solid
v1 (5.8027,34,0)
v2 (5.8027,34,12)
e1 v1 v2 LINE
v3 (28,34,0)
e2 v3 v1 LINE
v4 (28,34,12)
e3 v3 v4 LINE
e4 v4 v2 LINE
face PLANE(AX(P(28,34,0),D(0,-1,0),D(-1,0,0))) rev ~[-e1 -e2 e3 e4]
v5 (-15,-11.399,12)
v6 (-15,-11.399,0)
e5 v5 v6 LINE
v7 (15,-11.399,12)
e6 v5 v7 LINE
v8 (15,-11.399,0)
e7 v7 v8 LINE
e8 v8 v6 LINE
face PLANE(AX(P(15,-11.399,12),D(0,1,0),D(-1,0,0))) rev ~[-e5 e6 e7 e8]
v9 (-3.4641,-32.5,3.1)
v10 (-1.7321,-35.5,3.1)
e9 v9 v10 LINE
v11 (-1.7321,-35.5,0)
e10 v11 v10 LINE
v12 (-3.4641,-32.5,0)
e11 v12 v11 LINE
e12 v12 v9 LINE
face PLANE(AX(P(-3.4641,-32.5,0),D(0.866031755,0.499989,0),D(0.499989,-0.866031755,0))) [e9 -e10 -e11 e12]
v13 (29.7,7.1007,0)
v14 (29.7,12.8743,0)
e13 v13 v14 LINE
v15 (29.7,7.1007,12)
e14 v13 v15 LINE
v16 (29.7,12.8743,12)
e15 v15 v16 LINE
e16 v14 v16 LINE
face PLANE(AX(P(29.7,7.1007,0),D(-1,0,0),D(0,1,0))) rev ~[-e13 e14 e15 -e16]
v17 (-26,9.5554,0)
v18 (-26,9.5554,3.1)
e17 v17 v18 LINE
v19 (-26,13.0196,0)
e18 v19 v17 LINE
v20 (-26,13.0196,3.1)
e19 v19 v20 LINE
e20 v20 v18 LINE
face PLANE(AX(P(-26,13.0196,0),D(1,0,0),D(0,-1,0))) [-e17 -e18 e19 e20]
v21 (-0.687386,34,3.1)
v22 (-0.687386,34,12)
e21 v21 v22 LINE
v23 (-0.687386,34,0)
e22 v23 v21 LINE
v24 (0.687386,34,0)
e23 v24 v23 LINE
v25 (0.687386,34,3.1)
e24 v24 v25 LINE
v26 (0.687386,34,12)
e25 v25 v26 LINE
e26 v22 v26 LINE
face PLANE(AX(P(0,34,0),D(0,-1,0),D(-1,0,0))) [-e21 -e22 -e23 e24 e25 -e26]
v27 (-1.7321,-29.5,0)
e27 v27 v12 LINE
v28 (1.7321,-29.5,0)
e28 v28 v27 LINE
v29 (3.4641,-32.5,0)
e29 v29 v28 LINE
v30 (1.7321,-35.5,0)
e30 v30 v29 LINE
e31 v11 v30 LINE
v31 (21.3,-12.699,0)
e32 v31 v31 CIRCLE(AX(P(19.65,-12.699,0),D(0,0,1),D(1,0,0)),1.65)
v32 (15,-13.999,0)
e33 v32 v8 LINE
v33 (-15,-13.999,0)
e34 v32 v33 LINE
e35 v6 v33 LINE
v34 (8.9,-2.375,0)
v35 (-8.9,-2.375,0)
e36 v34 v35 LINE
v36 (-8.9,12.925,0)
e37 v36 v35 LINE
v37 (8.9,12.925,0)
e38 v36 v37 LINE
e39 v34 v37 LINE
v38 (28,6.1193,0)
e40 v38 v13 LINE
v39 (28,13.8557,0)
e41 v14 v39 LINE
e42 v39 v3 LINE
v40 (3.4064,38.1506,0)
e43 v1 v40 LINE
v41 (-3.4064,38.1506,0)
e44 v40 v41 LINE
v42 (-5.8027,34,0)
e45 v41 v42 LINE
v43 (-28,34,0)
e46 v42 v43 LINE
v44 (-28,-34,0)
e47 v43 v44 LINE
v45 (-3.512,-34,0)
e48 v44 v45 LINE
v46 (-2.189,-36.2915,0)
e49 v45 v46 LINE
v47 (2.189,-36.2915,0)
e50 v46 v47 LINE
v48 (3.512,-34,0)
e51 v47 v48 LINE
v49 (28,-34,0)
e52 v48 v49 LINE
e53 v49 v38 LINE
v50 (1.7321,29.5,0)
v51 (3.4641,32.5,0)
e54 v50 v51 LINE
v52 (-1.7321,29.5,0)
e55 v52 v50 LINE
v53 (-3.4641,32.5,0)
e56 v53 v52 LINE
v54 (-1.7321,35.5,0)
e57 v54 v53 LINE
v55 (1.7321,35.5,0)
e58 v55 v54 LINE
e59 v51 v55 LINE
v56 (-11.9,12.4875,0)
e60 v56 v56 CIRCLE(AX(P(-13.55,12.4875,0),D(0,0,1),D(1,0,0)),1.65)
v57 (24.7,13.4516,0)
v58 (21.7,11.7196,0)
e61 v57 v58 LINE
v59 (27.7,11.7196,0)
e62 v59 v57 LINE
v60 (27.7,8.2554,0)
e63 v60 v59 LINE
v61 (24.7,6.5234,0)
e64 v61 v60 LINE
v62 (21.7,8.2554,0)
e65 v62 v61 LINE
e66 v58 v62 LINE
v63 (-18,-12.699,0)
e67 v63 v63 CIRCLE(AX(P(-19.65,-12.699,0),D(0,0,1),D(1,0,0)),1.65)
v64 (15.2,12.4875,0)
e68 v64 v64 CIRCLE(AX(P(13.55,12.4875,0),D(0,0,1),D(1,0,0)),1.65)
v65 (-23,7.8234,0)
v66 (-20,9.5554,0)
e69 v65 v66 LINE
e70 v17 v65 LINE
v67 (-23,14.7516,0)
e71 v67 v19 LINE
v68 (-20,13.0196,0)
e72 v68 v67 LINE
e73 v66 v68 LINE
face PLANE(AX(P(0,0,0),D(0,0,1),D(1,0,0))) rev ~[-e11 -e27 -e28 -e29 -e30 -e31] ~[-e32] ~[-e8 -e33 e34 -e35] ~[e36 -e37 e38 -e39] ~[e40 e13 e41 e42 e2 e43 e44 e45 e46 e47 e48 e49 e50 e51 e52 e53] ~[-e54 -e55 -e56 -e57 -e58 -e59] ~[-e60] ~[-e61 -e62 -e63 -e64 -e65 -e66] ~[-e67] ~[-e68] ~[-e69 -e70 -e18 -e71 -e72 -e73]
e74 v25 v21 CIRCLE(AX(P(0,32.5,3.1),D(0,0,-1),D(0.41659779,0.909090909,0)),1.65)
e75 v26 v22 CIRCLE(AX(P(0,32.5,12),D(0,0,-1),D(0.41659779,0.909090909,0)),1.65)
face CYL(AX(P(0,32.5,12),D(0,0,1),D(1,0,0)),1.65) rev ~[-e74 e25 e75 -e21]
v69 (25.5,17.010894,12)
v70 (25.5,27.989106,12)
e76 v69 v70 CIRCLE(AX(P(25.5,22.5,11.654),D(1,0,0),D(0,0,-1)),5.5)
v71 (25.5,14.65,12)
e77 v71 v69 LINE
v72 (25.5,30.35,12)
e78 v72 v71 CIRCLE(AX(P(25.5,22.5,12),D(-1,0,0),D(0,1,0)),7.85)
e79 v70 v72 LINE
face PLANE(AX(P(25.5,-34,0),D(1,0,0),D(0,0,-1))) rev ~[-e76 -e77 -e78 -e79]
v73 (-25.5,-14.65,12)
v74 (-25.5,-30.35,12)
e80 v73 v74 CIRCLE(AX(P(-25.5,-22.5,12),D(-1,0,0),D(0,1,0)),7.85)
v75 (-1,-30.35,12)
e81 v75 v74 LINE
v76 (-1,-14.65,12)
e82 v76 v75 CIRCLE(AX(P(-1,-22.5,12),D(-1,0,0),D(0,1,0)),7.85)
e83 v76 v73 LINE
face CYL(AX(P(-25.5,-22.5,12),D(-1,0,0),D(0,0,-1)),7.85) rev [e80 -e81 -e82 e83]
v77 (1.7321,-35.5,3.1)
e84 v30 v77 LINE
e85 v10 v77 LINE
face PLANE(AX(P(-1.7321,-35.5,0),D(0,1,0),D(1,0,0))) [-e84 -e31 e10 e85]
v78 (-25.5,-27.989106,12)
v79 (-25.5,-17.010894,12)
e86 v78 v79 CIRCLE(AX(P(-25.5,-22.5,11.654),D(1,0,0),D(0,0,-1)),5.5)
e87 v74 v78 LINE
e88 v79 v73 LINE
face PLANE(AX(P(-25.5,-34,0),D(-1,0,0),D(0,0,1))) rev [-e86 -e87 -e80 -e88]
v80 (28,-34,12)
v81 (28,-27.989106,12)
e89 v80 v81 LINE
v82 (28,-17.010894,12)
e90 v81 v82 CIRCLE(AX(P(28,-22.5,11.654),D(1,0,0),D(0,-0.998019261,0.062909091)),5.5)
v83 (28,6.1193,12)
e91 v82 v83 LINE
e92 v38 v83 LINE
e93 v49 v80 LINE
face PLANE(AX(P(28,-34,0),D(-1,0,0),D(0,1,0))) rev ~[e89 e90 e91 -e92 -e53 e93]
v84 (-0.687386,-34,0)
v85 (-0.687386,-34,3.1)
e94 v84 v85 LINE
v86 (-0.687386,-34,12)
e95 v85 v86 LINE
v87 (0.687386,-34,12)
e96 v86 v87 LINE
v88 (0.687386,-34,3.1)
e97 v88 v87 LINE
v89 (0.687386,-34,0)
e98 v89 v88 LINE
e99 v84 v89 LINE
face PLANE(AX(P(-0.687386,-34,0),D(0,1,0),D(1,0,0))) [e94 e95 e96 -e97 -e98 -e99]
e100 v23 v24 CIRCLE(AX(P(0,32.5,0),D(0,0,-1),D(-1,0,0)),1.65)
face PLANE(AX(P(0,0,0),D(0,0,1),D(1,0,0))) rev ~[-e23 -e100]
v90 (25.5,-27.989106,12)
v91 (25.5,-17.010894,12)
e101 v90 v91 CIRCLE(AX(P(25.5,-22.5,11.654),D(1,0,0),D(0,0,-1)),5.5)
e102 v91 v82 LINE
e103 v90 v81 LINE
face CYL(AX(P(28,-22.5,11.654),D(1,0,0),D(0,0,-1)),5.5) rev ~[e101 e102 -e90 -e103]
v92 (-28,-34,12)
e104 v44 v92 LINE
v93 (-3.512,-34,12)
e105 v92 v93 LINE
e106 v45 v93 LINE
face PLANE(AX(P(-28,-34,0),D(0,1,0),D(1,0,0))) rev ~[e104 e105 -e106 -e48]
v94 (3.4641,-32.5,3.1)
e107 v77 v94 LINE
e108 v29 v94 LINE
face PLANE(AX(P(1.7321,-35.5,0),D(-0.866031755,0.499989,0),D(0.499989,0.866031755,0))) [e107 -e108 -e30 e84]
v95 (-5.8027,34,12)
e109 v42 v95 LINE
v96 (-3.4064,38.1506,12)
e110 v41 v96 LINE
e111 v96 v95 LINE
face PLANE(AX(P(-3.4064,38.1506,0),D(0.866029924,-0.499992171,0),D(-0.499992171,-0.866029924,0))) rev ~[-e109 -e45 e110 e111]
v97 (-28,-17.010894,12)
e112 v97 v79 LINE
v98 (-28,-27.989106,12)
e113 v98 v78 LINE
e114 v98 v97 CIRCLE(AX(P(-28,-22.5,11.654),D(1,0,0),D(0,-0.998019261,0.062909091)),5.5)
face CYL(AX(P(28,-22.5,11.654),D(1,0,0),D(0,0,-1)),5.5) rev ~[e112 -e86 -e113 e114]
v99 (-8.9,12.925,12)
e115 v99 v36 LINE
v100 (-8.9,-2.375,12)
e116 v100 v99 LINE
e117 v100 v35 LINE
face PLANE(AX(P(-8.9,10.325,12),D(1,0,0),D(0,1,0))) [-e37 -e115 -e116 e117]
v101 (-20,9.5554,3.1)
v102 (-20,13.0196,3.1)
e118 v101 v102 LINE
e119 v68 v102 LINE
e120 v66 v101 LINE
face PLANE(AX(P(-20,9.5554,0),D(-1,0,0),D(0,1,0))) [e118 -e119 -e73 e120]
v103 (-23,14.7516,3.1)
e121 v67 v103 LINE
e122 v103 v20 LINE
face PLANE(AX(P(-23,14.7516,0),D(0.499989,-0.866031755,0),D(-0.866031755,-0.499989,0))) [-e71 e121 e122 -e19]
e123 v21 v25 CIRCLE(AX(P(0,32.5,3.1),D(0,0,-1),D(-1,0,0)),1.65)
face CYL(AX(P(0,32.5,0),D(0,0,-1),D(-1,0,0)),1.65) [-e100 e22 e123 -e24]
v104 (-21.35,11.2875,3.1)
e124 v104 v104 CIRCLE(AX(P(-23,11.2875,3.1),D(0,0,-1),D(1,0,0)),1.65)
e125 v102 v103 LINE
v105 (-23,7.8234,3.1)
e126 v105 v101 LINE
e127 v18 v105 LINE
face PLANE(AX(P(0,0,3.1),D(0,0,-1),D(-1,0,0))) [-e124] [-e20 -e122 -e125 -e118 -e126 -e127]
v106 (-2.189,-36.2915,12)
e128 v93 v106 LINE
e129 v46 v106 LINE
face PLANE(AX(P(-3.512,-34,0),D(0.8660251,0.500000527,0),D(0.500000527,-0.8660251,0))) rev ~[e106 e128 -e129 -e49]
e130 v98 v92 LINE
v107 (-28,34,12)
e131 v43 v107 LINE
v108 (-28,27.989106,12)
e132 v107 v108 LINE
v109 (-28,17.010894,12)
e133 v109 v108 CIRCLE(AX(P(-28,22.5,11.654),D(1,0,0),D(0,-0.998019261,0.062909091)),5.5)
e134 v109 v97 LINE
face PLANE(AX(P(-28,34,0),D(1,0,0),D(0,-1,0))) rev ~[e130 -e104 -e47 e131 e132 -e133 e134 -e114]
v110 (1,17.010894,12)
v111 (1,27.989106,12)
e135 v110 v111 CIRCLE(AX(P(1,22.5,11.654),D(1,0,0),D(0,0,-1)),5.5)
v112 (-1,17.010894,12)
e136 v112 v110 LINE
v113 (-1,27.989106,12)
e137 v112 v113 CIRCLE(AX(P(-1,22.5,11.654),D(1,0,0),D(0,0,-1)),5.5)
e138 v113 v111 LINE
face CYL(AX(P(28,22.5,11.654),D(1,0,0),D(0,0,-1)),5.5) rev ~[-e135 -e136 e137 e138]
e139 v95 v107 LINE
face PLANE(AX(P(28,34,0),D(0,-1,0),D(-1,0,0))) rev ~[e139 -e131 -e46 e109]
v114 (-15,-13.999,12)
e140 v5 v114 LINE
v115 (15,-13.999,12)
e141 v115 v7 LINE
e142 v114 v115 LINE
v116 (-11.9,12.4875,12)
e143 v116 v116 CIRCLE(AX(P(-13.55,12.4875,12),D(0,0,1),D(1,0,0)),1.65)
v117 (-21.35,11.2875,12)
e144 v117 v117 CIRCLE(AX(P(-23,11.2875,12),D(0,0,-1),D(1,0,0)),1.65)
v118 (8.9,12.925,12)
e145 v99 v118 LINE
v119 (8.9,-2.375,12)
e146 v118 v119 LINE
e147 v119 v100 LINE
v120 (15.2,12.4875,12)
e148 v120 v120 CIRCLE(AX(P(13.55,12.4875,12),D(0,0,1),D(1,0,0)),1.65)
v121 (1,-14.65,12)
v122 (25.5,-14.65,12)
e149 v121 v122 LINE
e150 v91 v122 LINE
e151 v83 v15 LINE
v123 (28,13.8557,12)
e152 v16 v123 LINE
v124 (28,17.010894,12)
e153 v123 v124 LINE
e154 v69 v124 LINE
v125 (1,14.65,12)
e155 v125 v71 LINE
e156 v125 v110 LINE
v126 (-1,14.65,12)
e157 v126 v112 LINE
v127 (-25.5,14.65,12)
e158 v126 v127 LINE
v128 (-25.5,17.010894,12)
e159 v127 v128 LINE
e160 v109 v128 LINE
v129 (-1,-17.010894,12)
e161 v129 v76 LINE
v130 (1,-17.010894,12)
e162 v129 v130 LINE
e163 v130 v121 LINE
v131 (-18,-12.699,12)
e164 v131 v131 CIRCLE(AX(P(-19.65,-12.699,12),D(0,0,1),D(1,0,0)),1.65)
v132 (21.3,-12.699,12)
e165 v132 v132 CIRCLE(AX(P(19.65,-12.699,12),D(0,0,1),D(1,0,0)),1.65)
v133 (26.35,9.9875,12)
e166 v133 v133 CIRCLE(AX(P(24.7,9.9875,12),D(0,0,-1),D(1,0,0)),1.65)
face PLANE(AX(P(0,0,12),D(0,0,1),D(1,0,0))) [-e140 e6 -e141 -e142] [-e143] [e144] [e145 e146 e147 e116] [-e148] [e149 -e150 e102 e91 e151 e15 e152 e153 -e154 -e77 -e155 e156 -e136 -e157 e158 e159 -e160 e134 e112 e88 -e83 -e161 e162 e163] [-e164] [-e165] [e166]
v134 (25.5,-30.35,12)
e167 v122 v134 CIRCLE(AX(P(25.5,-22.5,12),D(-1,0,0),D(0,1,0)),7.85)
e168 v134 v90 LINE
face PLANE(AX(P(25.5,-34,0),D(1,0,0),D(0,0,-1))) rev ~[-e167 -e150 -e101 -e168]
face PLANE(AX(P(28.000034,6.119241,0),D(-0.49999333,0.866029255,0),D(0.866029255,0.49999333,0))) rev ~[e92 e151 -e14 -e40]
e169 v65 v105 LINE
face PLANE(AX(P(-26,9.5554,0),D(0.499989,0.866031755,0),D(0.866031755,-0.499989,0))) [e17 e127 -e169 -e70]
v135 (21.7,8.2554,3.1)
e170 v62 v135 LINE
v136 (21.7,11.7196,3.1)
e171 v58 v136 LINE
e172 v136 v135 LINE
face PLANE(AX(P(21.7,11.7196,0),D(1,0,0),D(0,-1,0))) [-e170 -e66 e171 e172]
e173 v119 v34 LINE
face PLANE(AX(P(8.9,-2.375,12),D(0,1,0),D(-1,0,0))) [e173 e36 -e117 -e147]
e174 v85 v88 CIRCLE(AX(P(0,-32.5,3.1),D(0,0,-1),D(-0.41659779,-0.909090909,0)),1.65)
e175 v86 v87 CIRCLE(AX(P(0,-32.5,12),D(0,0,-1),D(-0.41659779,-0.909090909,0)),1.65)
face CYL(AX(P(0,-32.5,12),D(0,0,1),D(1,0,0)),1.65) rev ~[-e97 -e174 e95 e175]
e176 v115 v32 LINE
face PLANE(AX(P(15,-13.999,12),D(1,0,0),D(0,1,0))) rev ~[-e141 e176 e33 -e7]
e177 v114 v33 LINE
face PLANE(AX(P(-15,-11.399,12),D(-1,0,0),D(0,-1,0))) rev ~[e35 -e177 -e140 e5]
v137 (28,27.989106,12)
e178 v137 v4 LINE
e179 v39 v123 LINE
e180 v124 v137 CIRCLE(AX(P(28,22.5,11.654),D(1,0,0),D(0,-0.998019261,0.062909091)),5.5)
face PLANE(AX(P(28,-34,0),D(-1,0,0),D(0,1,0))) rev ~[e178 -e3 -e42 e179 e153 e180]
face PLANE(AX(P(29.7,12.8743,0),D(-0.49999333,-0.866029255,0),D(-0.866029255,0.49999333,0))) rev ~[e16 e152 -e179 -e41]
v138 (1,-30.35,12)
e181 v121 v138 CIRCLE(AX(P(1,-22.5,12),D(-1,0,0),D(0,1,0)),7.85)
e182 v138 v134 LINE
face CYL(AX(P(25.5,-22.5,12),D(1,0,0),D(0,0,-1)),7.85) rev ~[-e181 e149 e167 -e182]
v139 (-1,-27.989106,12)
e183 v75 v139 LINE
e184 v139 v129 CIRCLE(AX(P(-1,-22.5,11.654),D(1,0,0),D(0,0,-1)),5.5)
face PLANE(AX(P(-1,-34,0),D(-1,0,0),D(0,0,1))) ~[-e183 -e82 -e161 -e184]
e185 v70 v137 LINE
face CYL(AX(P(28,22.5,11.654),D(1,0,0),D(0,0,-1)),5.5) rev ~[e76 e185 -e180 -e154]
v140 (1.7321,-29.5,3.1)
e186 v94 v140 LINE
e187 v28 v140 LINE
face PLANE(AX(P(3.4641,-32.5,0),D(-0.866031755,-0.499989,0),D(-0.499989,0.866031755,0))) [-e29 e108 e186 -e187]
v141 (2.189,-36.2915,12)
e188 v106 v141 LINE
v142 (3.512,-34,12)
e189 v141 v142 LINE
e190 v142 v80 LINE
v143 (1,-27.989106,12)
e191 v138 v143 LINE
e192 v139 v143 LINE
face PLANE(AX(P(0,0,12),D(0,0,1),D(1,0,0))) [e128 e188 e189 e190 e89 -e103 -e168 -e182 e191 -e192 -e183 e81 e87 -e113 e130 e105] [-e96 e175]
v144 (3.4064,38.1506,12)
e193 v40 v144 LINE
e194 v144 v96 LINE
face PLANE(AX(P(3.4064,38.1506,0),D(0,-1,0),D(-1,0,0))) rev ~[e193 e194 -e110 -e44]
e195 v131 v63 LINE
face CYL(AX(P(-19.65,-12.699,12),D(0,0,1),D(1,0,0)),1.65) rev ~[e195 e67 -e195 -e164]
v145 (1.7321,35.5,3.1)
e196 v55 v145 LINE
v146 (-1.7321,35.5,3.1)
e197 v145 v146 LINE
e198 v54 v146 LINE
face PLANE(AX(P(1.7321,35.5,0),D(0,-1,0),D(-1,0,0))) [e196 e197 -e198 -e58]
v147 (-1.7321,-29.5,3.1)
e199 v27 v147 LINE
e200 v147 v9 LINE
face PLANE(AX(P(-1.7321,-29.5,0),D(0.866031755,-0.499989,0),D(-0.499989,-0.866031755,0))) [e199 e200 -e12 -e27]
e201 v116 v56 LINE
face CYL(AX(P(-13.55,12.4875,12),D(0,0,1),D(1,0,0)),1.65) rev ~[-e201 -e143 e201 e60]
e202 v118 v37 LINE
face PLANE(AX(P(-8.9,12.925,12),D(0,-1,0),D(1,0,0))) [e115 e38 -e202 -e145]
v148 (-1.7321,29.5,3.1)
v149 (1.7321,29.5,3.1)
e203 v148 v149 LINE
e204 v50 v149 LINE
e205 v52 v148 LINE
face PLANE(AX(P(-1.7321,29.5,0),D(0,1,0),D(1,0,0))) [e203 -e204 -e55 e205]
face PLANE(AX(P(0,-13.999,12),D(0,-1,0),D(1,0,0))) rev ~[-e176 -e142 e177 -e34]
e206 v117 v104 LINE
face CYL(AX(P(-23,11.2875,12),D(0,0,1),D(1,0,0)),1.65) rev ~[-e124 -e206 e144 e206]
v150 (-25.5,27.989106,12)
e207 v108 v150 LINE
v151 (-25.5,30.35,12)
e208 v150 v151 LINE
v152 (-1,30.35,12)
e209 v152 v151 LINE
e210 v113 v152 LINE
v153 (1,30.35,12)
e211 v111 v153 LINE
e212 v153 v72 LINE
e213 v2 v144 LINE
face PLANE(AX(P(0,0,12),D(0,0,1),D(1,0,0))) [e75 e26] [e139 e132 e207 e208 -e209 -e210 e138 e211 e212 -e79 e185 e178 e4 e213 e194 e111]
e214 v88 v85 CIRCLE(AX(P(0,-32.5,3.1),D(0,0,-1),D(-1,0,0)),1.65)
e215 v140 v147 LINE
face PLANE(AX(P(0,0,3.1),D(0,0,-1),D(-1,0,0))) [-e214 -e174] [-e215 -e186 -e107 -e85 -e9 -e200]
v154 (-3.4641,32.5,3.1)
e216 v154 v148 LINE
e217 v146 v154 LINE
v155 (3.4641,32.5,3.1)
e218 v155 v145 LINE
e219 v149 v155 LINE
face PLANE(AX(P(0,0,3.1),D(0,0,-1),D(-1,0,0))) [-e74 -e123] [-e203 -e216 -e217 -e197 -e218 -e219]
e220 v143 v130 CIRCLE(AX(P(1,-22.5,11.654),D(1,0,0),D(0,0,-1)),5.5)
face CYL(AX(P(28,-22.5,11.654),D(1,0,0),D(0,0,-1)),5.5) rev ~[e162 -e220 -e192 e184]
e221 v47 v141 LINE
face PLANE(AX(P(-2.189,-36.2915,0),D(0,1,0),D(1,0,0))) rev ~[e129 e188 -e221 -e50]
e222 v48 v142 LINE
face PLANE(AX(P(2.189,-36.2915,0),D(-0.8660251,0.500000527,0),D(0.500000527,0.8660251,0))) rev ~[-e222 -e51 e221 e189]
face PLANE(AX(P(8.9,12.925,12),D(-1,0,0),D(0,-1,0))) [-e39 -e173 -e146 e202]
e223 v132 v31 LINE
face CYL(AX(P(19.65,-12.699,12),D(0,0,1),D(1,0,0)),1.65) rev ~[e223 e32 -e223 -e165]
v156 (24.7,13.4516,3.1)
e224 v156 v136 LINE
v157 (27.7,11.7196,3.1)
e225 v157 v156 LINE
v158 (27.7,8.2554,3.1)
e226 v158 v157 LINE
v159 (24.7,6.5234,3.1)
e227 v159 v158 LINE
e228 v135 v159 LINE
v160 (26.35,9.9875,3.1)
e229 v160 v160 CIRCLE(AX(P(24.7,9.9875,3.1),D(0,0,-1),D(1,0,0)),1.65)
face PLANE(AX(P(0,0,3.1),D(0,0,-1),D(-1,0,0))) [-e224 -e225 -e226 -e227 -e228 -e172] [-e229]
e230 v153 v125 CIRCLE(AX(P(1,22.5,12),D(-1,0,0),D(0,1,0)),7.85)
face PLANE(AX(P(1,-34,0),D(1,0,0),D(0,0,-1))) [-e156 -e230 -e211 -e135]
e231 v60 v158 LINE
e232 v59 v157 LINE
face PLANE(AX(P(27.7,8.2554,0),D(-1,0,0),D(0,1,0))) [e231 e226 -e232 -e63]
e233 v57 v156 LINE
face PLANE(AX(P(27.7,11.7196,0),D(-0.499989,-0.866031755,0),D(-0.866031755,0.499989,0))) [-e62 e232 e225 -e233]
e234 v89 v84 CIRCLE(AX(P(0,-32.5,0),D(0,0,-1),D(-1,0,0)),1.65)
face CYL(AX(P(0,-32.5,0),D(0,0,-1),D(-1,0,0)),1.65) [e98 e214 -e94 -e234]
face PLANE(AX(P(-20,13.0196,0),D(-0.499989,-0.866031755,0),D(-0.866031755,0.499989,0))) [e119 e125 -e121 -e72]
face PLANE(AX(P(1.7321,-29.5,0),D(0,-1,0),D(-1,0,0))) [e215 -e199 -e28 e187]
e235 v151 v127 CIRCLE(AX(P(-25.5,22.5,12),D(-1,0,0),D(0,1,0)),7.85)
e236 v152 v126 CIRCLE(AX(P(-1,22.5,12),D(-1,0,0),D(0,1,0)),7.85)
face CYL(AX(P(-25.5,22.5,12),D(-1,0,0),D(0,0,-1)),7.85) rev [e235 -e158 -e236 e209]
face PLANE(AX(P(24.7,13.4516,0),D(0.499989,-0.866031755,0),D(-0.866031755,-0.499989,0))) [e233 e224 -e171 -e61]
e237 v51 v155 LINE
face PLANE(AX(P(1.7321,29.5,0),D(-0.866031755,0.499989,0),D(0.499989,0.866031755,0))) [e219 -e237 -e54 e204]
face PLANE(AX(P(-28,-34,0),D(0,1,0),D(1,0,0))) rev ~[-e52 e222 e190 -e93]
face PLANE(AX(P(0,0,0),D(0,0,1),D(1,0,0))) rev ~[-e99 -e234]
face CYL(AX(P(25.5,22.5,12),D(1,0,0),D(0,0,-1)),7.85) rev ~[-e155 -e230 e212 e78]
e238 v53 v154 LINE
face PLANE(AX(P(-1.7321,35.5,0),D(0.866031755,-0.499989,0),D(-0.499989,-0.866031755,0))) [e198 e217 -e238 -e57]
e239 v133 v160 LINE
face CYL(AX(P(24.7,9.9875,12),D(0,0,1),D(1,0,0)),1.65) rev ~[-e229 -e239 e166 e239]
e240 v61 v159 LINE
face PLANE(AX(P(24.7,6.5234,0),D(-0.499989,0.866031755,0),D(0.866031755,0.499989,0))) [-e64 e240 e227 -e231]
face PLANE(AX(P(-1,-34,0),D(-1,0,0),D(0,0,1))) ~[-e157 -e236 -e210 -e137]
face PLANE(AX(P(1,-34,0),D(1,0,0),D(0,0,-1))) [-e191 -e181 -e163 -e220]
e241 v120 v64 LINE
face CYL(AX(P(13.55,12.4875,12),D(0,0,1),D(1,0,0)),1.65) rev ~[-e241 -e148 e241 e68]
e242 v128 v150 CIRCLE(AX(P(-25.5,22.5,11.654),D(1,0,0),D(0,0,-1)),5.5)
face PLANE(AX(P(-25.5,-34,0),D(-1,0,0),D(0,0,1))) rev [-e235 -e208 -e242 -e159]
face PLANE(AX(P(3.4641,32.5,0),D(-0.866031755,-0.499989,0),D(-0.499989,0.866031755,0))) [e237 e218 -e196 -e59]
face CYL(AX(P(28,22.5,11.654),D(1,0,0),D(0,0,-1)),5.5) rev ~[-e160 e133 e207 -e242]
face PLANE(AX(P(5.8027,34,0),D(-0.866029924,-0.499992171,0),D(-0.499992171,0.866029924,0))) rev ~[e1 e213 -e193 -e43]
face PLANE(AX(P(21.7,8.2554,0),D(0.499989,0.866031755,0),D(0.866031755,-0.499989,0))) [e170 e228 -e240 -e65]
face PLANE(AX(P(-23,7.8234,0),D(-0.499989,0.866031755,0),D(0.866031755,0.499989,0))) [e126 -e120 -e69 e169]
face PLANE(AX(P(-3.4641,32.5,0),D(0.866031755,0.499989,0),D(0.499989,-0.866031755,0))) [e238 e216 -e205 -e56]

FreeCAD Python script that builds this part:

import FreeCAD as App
import Part
import Sketcher

V = App.Vector
Q = App.Units.Quantity

doc = App.newDocument("Part")
params = doc.addObject("Spreadsheet::Sheet", "Params")
for row, (alias, value) in enumerate([
    ("sketch1_width", "56 mm"),
    ("sketch1_height", "68 mm"),
    ("pad1_length", "12 mm"),
    ("sketch2_diameter", "11 mm"),
    ("pocket1_length", "56 mm"),
    ("sketch3_diameter", "15.7 mm"),
    ("pocket2_length", "24.5 mm"),
    ("sketch4_width", "30 mm"),
    ("sketch4_height", "2.6 mm"),
    ("sketch4_height2", "15.3 mm"),
    ("sketch4_width2", "17.8 mm"),
    ("pocket3_length", "12 mm"),
    ("sketch5_diameter", "3.3 mm"),
    ("pocket4_length", "12 mm"),
    ("pad2_length", "12 mm"),
    ("sketch7_diameter", "3.3 mm"),
    ("pocket5_length", "3.1 mm"),
], start=1):
    params.set(f"A{row}", alias)
    params.set(f"B{row}", "=" + value)
    params.setAlias(f"B{row}", alias)

body = doc.addObject("PartDesign::Body", "Body")

sketch1 = doc.addObject("Sketcher::SketchObject", "Sketch")
body.addObject(sketch1)
sketch1.AttachmentSupport = (doc.XY_Plane, [""])
sketch1.MapMode = "FlatFace"
sketch1.addGeometry(Part.LineSegment(V(-28, 34, 0), V(-28, -34, 0)), False)
sketch1.addGeometry(Part.LineSegment(V(-28, -34, 0), V(28, -34, 0)), False)
sketch1.addGeometry(Part.LineSegment(V(28, -34, 0), V(28, 34, 0)), False)
sketch1.addGeometry(Part.LineSegment(V(28, 34, 0), V(-28, 34, 0)), False)
sketch1.addConstraint(Sketcher.Constraint("Coincident", 0, 2, 1, 1))
sketch1.addConstraint(Sketcher.Constraint("Coincident", 1, 2, 2, 1))
sketch1.addConstraint(Sketcher.Constraint("Coincident", 2, 2, 3, 1))
sketch1.addConstraint(Sketcher.Constraint("Coincident", 3, 2, 0, 1))
sketch1.addConstraint(Sketcher.Constraint("Vertical", 0))
sketch1.addConstraint(Sketcher.Constraint("Horizontal", 1))
sketch1.addConstraint(Sketcher.Constraint("Vertical", 2))
sketch1.addConstraint(Sketcher.Constraint("Horizontal", 3))
sketch1.addConstraint(Sketcher.Constraint("Symmetric", 0, 2, 2, 2, -1, 1))
sketch1.addConstraint(Sketcher.Constraint("DistanceX", 1, 1, 1, 2, Q("56 mm")))
sketch1.addConstraint(Sketcher.Constraint("DistanceY", 0, 2, 0, 1, Q("68 mm")))
sketch1.setExpression("Constraints[9]", "Params.sketch1_width")
sketch1.setExpression("Constraints[10]", "Params.sketch1_height")
pad1 = doc.addObject("PartDesign::Pad", "Pad")
body.addObject(pad1)
pad1.Profile = sketch1
pad1.setExpression("Length", "Params.pad1_length")

sketch2 = doc.addObject("Sketcher::SketchObject", "Sketch001")
body.addObject(sketch2)
sketch2.AttachmentSupport = (doc.YZ_Plane, [""])
sketch2.MapMode = "FlatFace"
sketch2.AttachmentOffset = App.Placement(V(0, 0, 28), App.Rotation())
sketch2.addGeometry(Part.Circle(V(-22.5, 11.654, 0), V(0, 0, 1), 5.5), False)
sketch2.addGeometry(Part.Circle(V(22.5, 11.654, 0), V(0, 0, 1), 5.5), False)
sketch2.addConstraint(Sketcher.Constraint("Equal", 0, 1))
sketch2.addConstraint(Sketcher.Constraint("Symmetric", 0, 3, 1, 3, -2))
sketch2.addConstraint(Sketcher.Constraint("Diameter", 0, Q("11 mm")))
sketch2.addConstraint(Sketcher.Constraint("DistanceX", 0, 3, -1, 1, Q("22.5 mm")))
sketch2.addConstraint(Sketcher.Constraint("DistanceY", -1, 1, 0, 3, Q("11.654 mm")))
sketch2.setExpression("Constraints[2]", "Params.sketch2_diameter")
pocket1 = doc.addObject("PartDesign::Pocket", "Pocket")
body.addObject(pocket1)
pocket1.Profile = sketch2
pocket1.setExpression("Length", "Params.pocket1_length")

sketch3 = doc.addObject("Sketcher::SketchObject", "Sketch002")
body.addObject(sketch3)
sketch3.AttachmentSupport = (doc.YZ_Plane, [""])
sketch3.MapMode = "FlatFace"
sketch3.AttachmentOffset = App.Placement(V(0, 0, 25.5), App.Rotation())
sketch3.addGeometry(Part.Circle(V(22.5, 12, 0), V(0, 0, 1), 7.85), False)
sketch3.addGeometry(Part.Circle(V(-22.5, 12, 0), V(0, 0, 1), 7.85), False)
sketch3.addConstraint(Sketcher.Constraint("Equal", 0, 1))
sketch3.addConstraint(Sketcher.Constraint("Symmetric", 0, 3, 1, 3, -2))
sketch3.addConstraint(Sketcher.Constraint("Diameter", 0, Q("15.7 mm")))
sketch3.addConstraint(Sketcher.Constraint("DistanceY", -1, 1, 0, 3, Q("12 mm")))
sketch3.addConstraint(Sketcher.Constraint("DistanceX", 1, 3, 0, 3, Q("45 mm")))
sketch3.setExpression("Constraints[2]", "Params.sketch3_diameter")
pocket2 = doc.addObject("PartDesign::Pocket", "Pocket001")
body.addObject(pocket2)
pocket2.Profile = sketch3
pocket2.setExpression("Length", "Params.pocket2_length")
doc.recompute()

mirrored = doc.addObject("PartDesign::Mirrored", "Mirrored")
body.addObject(mirrored)
mirrored.Originals = [pocket2]
mirrored.MirrorPlane = (doc.YZ_Plane, [""])
body.Tip = mirrored

sketch4 = doc.addObject("Sketcher::SketchObject", "Sketch003")
body.addObject(sketch4)
sketch4.AttachmentSupport = (doc.XY_Plane, [""])
sketch4.MapMode = "FlatFace"
sketch4.AttachmentOffset = App.Placement(V(0, 0, 12), App.Rotation())
sketch4.addGeometry(Part.LineSegment(V(15, -11.399, 0), V(-15, -11.399, 0)), False)
sketch4.addGeometry(Part.LineSegment(V(-15, -11.399, 0), V(-15, -13.999, 0)), False)
sketch4.addGeometry(Part.LineSegment(V(-15, -13.999, 0), V(15, -13.999, 0)), False)
sketch4.addGeometry(Part.LineSegment(V(15, -13.999, 0), V(15, -11.399, 0)), False)
sketch4.addGeometry(Part.LineSegment(V(8.9, 12.925, 0), V(-8.9, 12.925, 0)), False)
sketch4.addGeometry(Part.LineSegment(V(-8.9, 12.925, 0), V(-8.9, -2.375, 0)), False)
sketch4.addGeometry(Part.LineSegment(V(-8.9, -2.375, 0), V(8.9, -2.375, 0)), False)
sketch4.addGeometry(Part.LineSegment(V(8.9, -2.375, 0), V(8.9, 12.925, 0)), False)
sketch4.addConstraint(Sketcher.Constraint("Coincident", 0, 2, 1, 1))
sketch4.addConstraint(Sketcher.Constraint("Coincident", 1, 2, 2, 1))
sketch4.addConstraint(Sketcher.Constraint("Coincident", 2, 2, 3, 1))
sketch4.addConstraint(Sketcher.Constraint("Coincident", 3, 2, 0, 1))
sketch4.addConstraint(Sketcher.Constraint("Coincident", 4, 2, 5, 1))
sketch4.addConstraint(Sketcher.Constraint("Coincident", 5, 2, 6, 1))
sketch4.addConstraint(Sketcher.Constraint("Coincident", 6, 2, 7, 1))
sketch4.addConstraint(Sketcher.Constraint("Coincident", 7, 2, 4, 1))
sketch4.addConstraint(Sketcher.Constraint("Horizontal", 0))
sketch4.addConstraint(Sketcher.Constraint("Vertical", 1))
sketch4.addConstraint(Sketcher.Constraint("Horizontal", 2))
sketch4.addConstraint(Sketcher.Constraint("Vertical", 3))
sketch4.addConstraint(Sketcher.Constraint("Horizontal", 4))
sketch4.addConstraint(Sketcher.Constraint("Vertical", 5))
sketch4.addConstraint(Sketcher.Constraint("Horizontal", 6))
sketch4.addConstraint(Sketcher.Constraint("Vertical", 7))
sketch4.addConstraint(Sketcher.Constraint("DistanceX", 0, 2, 0, 1, Q("30 mm")))
sketch4.addConstraint(Sketcher.Constraint("DistanceY", 1, 2, 1, 1, Q("2.6 mm")))
sketch4.addConstraint(Sketcher.Constraint("DistanceY", 5, 2, 5, 1, Q("15.3 mm")))
sketch4.addConstraint(Sketcher.Constraint("DistanceX", 4, 2, 4, 1, Q("17.8 mm")))
sketch4.addConstraint(Sketcher.Constraint("DistanceX", 0, 2, -1, 1, Q("15 mm")))
sketch4.addConstraint(Sketcher.Constraint("DistanceX", 4, 2, -1, 1, Q("8.9 mm")))
sketch4.addConstraint(Sketcher.Constraint("DistanceY", 0, 2, -1, 1, Q("11.399 mm")))
sketch4.addConstraint(Sketcher.Constraint("DistanceY", -1, 1, 4, 2, Q("12.925 mm")))
sketch4.setExpression("Constraints[16]", "Params.sketch4_width")
sketch4.setExpression("Constraints[17]", "Params.sketch4_height")
sketch4.setExpression("Constraints[18]", "Params.sketch4_height2")
sketch4.setExpression("Constraints[19]", "Params.sketch4_width2")
pocket3 = doc.addObject("PartDesign::Pocket", "Pocket002")
body.addObject(pocket3)
pocket3.Profile = sketch4
pocket3.setExpression("Length", "Params.pocket3_length")

sketch5 = doc.addObject("Sketcher::SketchObject", "Sketch004")
body.addObject(sketch5)
sketch5.AttachmentSupport = (doc.XY_Plane, [""])
sketch5.MapMode = "FlatFace"
sketch5.AttachmentOffset = App.Placement(V(0, 0, 12), App.Rotation())
sketch5.addGeometry(Part.Circle(V(0, 32.5, 0), V(0, 0, 1), 1.65), False)
sketch5.addGeometry(Part.Circle(V(-23, 11.2875, 0), V(0, 0, 1), 1.65), False)
sketch5.addGeometry(Part.Circle(V(24.7, 9.9875, 0), V(0, 0, 1), 1.65), False)
sketch5.addGeometry(Part.Circle(V(0, -32.5, 0), V(0, 0, 1), 1.65), False)
sketch5.addGeometry(Part.Circle(V(-13.55, 12.4875, 0), V(0, 0, 1), 1.65), False)
sketch5.addGeometry(Part.Circle(V(13.55, 12.4875, 0), V(0, 0, 1), 1.65), False)
sketch5.addGeometry(Part.Circle(V(-19.65, -12.699, 0), V(0, 0, 1), 1.65), False)
sketch5.addGeometry(Part.Circle(V(19.65, -12.699, 0), V(0, 0, 1), 1.65), False)
sketch5.addConstraint(Sketcher.Constraint("Equal", 0, 1))
sketch5.addConstraint(Sketcher.Constraint("Equal", 1, 2))
sketch5.addConstraint(Sketcher.Constraint("Equal", 2, 3))
sketch5.addConstraint(Sketcher.Constraint("Equal", 3, 4))
sketch5.addConstraint(Sketcher.Constraint("Equal", 4, 5))
sketch5.addConstraint(Sketcher.Constraint("Equal", 5, 6))
sketch5.addConstraint(Sketcher.Constraint("Equal", 6, 7))
sketch5.addConstraint(Sketcher.Constraint("Symmetric", 0, 3, 3, 3, -1, 1))
sketch5.addConstraint(Sketcher.Constraint("Symmetric", 4, 3, 5, 3, -2))
sketch5.addConstraint(Sketcher.Constraint("Symmetric", 6, 3, 7, 3, -2))
sketch5.addConstraint(Sketcher.Constraint("PointOnObject", 0, 3, -2))
sketch5.addConstraint(Sketcher.Constraint("Diameter", 0, Q("3.3 mm")))
sketch5.addConstraint(Sketcher.Constraint("DistanceX", 1, 3, -1, 1, Q("23 mm")))
sketch5.addConstraint(Sketcher.Constraint("DistanceY", 3, 3, 0, 3, Q("65 mm")))
sketch5.addConstraint(Sketcher.Constraint("DistanceX", -1, 1, 2, 3, Q("24.7 mm")))
sketch5.addConstraint(Sketcher.Constraint("DistanceY", 2, 3, 1, 3, Q("1.3 mm")))
sketch5.addConstraint(Sketcher.Constraint("DistanceY", 1, 3, 4, 3, Q("1.2 mm")))
sketch5.addConstraint(Sketcher.Constraint("DistanceX", 4, 3, 5, 3, Q("27.1 mm")))
sketch5.addConstraint(Sketcher.Constraint("DistanceX", 6, 3, 4, 3, Q("6.1 mm")))
sketch5.addConstraint(Sketcher.Constraint("DistanceY", 6, 3, -1, 1, Q("12.699 mm")))
sketch5.addConstraint(Sketcher.Constraint("DistanceY", -1, 1, 1, 3, Q("11.2875 mm")))
sketch5.setExpression("Constraints[11]", "Params.sketch5_diameter")
pocket4 = doc.addObject("PartDesign::Pocket", "Pocket003")
body.addObject(pocket4)
pocket4.Profile = sketch5
pocket4.setExpression("Length", "Params.pocket4_length")

sketch6 = doc.addObject("Sketcher::SketchObject", "Sketch005")
body.addObject(sketch6)
sketch6.AttachmentSupport = (doc.XY_Plane, [""])
sketch6.MapMode = "FlatFace"
sketch6.addGeometry(Part.LineSegment(V(3.512, -34, 0), V(2.189, -36.2915, 0)), False)
sketch6.addGeometry(Part.LineSegment(V(2.189, -36.2915, 0), V(-2.189, -36.2915, 0)), False)
sketch6.addGeometry(Part.LineSegment(V(-2.189, -36.2915, 0), V(-3.512, -34, 0)), False)
sketch6.addGeometry(Part.LineSegment(V(-3.512, -34, 0), V(3.512, -34, 0)), False)
sketch6.addGeometry(Part.LineSegment(V(28, 6.1193, 0), V(28, 13.8557, 0)), False)
sketch6.addGeometry(Part.LineSegment(V(28.000034, 13.855759, 0), V(29.7, 12.8743, 0)), False)
sketch6.addGeometry(Part.LineSegment(V(29.7, 12.8743, 0), V(29.7, 7.1007, 0)), False)
sketch6.addGeometry(Part.LineSegment(V(29.7, 7.1007, 0), V(28.000034, 6.119241, 0)), False)
sketch6.addGeometry(Part.LineSegment(V(-5.8027, 34, 0), V(-3.4064, 38.1506, 0)), False)
sketch6.addGeometry(Part.LineSegment(V(-3.4064, 38.1506, 0), V(3.4064, 38.1506, 0)), False)
sketch6.addGeometry(Part.LineSegment(V(3.4064, 38.1506, 0), V(5.8027, 34, 0)), False)
sketch6.addGeometry(Part.LineSegment(V(5.8027, 34, 0), V(-5.8027, 34, 0)), False)
sketch6.addConstraint(Sketcher.Constraint("Coincident", 0, 2, 1, 1))
sketch6.addConstraint(Sketcher.Constraint("Coincident", 1, 2, 2, 1))
sketch6.addConstraint(Sketcher.Constraint("Coincident", 2, 2, 3, 1))
sketch6.addConstraint(Sketcher.Constraint("Coincident", 3, 2, 0, 1))
sketch6.addConstraint(Sketcher.Constraint("Coincident", 4, 2, 5, 1))
sketch6.addConstraint(Sketcher.Constraint("Coincident", 5, 2, 6, 1))
sketch6.addConstraint(Sketcher.Constraint("Coincident", 6, 2, 7, 1))
sketch6.addConstraint(Sketcher.Constraint("Coincident", 7, 2, 4, 1))
sketch6.addConstraint(Sketcher.Constraint("Coincident", 8, 2, 9, 1))
sketch6.addConstraint(Sketcher.Constraint("Coincident", 9, 2, 10, 1))
sketch6.addConstraint(Sketcher.Constraint("Coincident", 10, 2, 11, 1))
sketch6.addConstraint(Sketcher.Constraint("Coincident", 11, 2, 8, 1))
sketch6.addConstraint(Sketcher.Constraint("Horizontal", 1))
sketch6.addConstraint(Sketcher.Constraint("Horizontal", 3))
sketch6.addConstraint(Sketcher.Constraint("Vertical", 4))
sketch6.addConstraint(Sketcher.Constraint("Vertical", 6))
sketch6.addConstraint(Sketcher.Constraint("Horizontal", 9))
sketch6.addConstraint(Sketcher.Constraint("Horizontal", 11))
sketch6.addConstraint(Sketcher.Constraint("Perpendicular", 0, 5))
sketch6.addConstraint(Sketcher.Constraint("Perpendicular", 2, 7))
sketch6.addConstraint(Sketcher.Constraint("Perpendicular", 5, 8))
sketch6.addConstraint(Sketcher.Constraint("Perpendicular", 7, 10))
sketch6.addConstraint(Sketcher.Constraint("Equal", 0, 2))
sketch6.addConstraint(Sketcher.Constraint("Angle", 0, Q("-120 deg")))
sketch6.addConstraint(Sketcher.Constraint("DistanceY", 2, 2, -1, 1, Q("34 mm")))
sketch6.addConstraint(Sketcher.Constraint("DistanceX", -1, 1, 4, 2, Q("28 mm")))
sketch6.addConstraint(Sketcher.Constraint("DistanceY", -1, 1, 10, 2, Q("34 mm")))
sketch6.addConstraint(Sketcher.Constraint("DistanceX", -1, 1, 5, 2, Q("29.7 mm")))
sketch6.addConstraint(Sketcher.Constraint("DistanceX", 1, 2, 1, 1, Q("4.378 mm")))
sketch6.addConstraint(Sketcher.Constraint("DistanceX", 3, 1, 3, 2, Q("7.024 mm")))
sketch6.addConstraint(Sketcher.Constraint("DistanceY", 6, 2, 8, 2, Q("31.05 mm")))
sketch6.addConstraint(Sketcher.Constraint("DistanceX", 9, 1, 9, 2, Q("6.8128 mm")))
sketch6.addConstraint(Sketcher.Constraint("DistanceX", 11, 2, 11, 1, Q("11.6054 mm")))
sketch6.addConstraint(Sketcher.Constraint("DistanceY", 4, 1, 4, 2, Q("7.7364 mm")))
sketch6.addConstraint(Sketcher.Constraint("DistanceX", -1, 1, 0, 2, Q("2.189 mm")))
sketch6.addConstraint(Sketcher.Constraint("DistanceX", 8, 2, -1, 1, Q("3.4064 mm")))
pad2 = doc.addObject("PartDesign::Pad", "Pad001")
body.addObject(pad2)
pad2.Profile = sketch6
pad2.setExpression("Length", "Params.pad2_length")

sketch7 = doc.addObject("Sketcher::SketchObject", "Sketch006")
body.addObject(sketch7)
sketch7.AttachmentSupport = (doc.XY_Plane, [""])
sketch7.MapMode = "FlatFace"
sketch7.addGeometry(Part.LineSegment(V(-3.4641, 32.5, 0), V(-1.7321, 35.5, 0)), False)
sketch7.addGeometry(Part.LineSegment(V(-1.7321, 35.5, 0), V(1.7321, 35.5, 0)), False)
sketch7.addGeometry(Part.LineSegment(V(1.7321, 35.5, 0), V(3.4641, 32.5, 0)), False)
sketch7.addGeometry(Part.LineSegment(V(3.4641, 32.5, 0), V(1.7321, 29.5, 0)), False)
sketch7.addGeometry(Part.LineSegment(V(1.7321, 29.5, 0), V(-1.7321, 29.5, 0)), False)
sketch7.addGeometry(Part.LineSegment(V(-1.7321, 29.5, 0), V(-3.4641, 32.5, 0)), False)
sketch7.addGeometry(Part.Circle(V(0, 32.5, 0), V(0, 0, 1), 1.65), False)
sketch7.addGeometry(Part.LineSegment(V(-23, 7.8234, 0), V(-26, 9.5554, 0)), False)
sketch7.addGeometry(Part.LineSegment(V(-26, 9.5554, 0), V(-26, 13.0196, 0)), False)
sketch7.addGeometry(Part.LineSegment(V(-26, 13.0196, 0), V(-23, 14.7516, 0)), False)
sketch7.addGeometry(Part.LineSegment(V(-23, 14.7516, 0), V(-20, 13.0196, 0)), False)
sketch7.addGeometry(Part.LineSegment(V(-20, 13.0196, 0), V(-20, 9.5554, 0)), False)
sketch7.addGeometry(Part.LineSegment(V(-20, 9.5554, 0), V(-23, 7.8234, 0)), False)
sketch7.addGeometry(Part.Circle(V(-23, 11.2875, 0), V(0, 0, 1), 1.65), False)
sketch7.addGeometry(Part.LineSegment(V(24.7, 13.4516, 0), V(27.7, 11.7196, 0)), False)
sketch7.addGeometry(Part.LineSegment(V(27.7, 11.7196, 0), V(27.7, 8.2554, 0)), False)
sketch7.addGeometry(Part.LineSegment(V(27.7, 8.2554, 0), V(24.7, 6.5234, 0)), False)
sketch7.addGeometry(Part.LineSegment(V(24.7, 6.5234, 0), V(21.7, 8.2554, 0)), False)
sketch7.addGeometry(Part.LineSegment(V(21.7, 8.2554, 0), V(21.7, 11.7196, 0)), False)
sketch7.addGeometry(Part.LineSegment(V(21.7, 11.7196, 0), V(24.7, 13.4516, 0)), False)
sketch7.addGeometry(Part.Circle(V(24.7, 9.9875, 0), V(0, 0, 1), 1.65), False)
sketch7.addGeometry(Part.LineSegment(V(-3.4641, -32.5, 0), V(-1.7321, -29.5, 0)), False)
sketch7.addGeometry(Part.LineSegment(V(-1.7321, -29.5, 0), V(1.7321, -29.5, 0)), False)
sketch7.addGeometry(Part.LineSegment(V(1.7321, -29.5, 0), V(3.4641, -32.5, 0)), False)
sketch7.addGeometry(Part.LineSegment(V(3.4641, -32.5, 0), V(1.7321, -35.5, 0)), False)
sketch7.addGeometry(Part.LineSegment(V(1.7321, -35.5, 0), V(-1.7321, -35.5, 0)), False)
sketch7.addGeometry(Part.LineSegment(V(-1.7321, -35.5, 0), V(-3.4641, -32.5, 0)), False)
sketch7.addGeometry(Part.Circle(V(0, -32.5, 0), V(0, 0, 1), 1.65), False)
sketch7.addConstraint(Sketcher.Constraint("Coincident", 0, 2, 1, 1))
sketch7.addConstraint(Sketcher.Constraint("Coincident", 1, 2, 2, 1))
sketch7.addConstraint(Sketcher.Constraint("Coincident", 2, 2, 3, 1))
sketch7.addConstraint(Sketcher.Constraint("Coincident", 3, 2, 4, 1))
sketch7.addConstraint(Sketcher.Constraint("Coincident", 4, 2, 5, 1))
sketch7.addConstraint(Sketcher.Constraint("Coincident", 5, 2, 0, 1))
sketch7.addConstraint(Sketcher.Constraint("Coincident", 7, 2, 8, 1))
sketch7.addConstraint(Sketcher.Constraint("Coincident", 8, 2, 9, 1))
sketch7.addConstraint(Sketcher.Constraint("Coincident", 9, 2, 10, 1))
sketch7.addConstraint(Sketcher.Constraint("Coincident", 10, 2, 11, 1))
sketch7.addConstraint(Sketcher.Constraint("Coincident", 11, 2, 12, 1))
sketch7.addConstraint(Sketcher.Constraint("Coincident", 12, 2, 7, 1))
sketch7.addConstraint(Sketcher.Constraint("Coincident", 14, 2, 15, 1))
sketch7.addConstraint(Sketcher.Constraint("Coincident", 15, 2, 16, 1))
sketch7.addConstraint(Sketcher.Constraint("Coincident", 16, 2, 17, 1))
sketch7.addConstraint(Sketcher.Constraint("Coincident", 17, 2, 18, 1))
sketch7.addConstraint(Sketcher.Constraint("Coincident", 18, 2, 19, 1))
sketch7.addConstraint(Sketcher.Constraint("Coincident", 19, 2, 14, 1))
sketch7.addConstraint(Sketcher.Constraint("Coincident", 21, 2, 22, 1))
sketch7.addConstraint(Sketcher.Constraint("Coincident", 22, 2, 23, 1))
sketch7.addConstraint(Sketcher.Constraint("Coincident", 23, 2, 24, 1))
sketch7.addConstraint(Sketcher.Constraint("Coincident", 24, 2, 25, 1))
sketch7.addConstraint(Sketcher.Constraint("Coincident", 25, 2, 26, 1))
sketch7.addConstraint(Sketcher.Constraint("Coincident", 26, 2, 21, 1))
sketch7.addConstraint(Sketcher.Constraint("Horizontal", 1))
sketch7.addConstraint(Sketcher.Constraint("Horizontal", 4))
sketch7.addConstraint(Sketcher.Constraint("Vertical", 8))
sketch7.addConstraint(Sketcher.Constraint("Vertical", 11))
sketch7.addConstraint(Sketcher.Constraint("Vertical", 15))
sketch7.addConstraint(Sketcher.Constraint("Vertical", 18))
sketch7.addConstraint(Sketcher.Constraint("Horizontal", 22))
sketch7.addConstraint(Sketcher.Constraint("Horizontal", 25))
sketch7.addConstraint(Sketcher.Constraint("Equal", 6, 13))
sketch7.addConstraint(Sketcher.Constraint("Equal", 13, 20))
sketch7.addConstraint(Sketcher.Constraint("Equal", 20, 27))
sketch7.addConstraint(Sketcher.Constraint("Symmetric", 6, 3, 27, 3, -1, 1))
sketch7.addConstraint(Sketcher.Constraint("Symmetric", 3, 2, 21, 2, -1, 1))
sketch7.addConstraint(Sketcher.Constraint("Symmetric", 5, 2, 23, 2, -1, 1))
sketch7.addConstraint(Sketcher.Constraint("Symmetric", 0, 2, 24, 2, -1, 1))
sketch7.addConstraint(Sketcher.Constraint("Symmetric", 2, 2, 26, 2, -1, 1))
sketch7.addConstraint(Sketcher.Constraint("Symmetric", 2, 2, 5, 2, -2))
sketch7.addConstraint(Sketcher.Constraint("PointOnObject", 6, 3, -2))
sketch7.addConstraint(Sketcher.Constraint("Parallel", 0, 3))
sketch7.addConstraint(Sketcher.Constraint("Parallel", 2, 5))
sketch7.addConstraint(Sketcher.Constraint("Perpendicular", 3, 7))
sketch7.addConstraint(Sketcher.Constraint("Perpendicular", 5, 9))
sketch7.addConstraint(Sketcher.Constraint("Parallel", 7, 10))
sketch7.addConstraint(Sketcher.Constraint("Parallel", 9, 12))
sketch7.addConstraint(Sketcher.Constraint("Parallel", 10, 14))
sketch7.addConstraint(Sketcher.Constraint("Parallel", 12, 16))
sketch7.addConstraint(Sketcher.Constraint("Parallel", 14, 17))
sketch7.addConstraint(Sketcher.Constraint("Parallel", 16, 19))
sketch7.addConstraint(Sketcher.Constraint("Perpendicular", 19, 23))
sketch7.addConstraint(Sketcher.Constraint("Parallel", 23, 26))
sketch7.addConstraint(Sketcher.Constraint("Horizontal", 6, 3, 2, 2))
sketch7.addConstraint(Sketcher.Constraint("Horizontal", 8, 2, 10, 2))
sketch7.addConstraint(Sketcher.Constraint("Horizontal", 7, 2, 11, 2))
sketch7.addConstraint(Sketcher.Constraint("Horizontal", 15, 2, 17, 2))
sketch7.addConstraint(Sketcher.Constraint("Horizontal", 14, 2, 18, 2))
sketch7.addConstraint(Sketcher.Constraint("Vertical", 1, 2, 3, 2))
sketch7.addConstraint(Sketcher.Constraint("Vertical", 0, 2, 4, 2))
sketch7.addConstraint(Sketcher.Constraint("Vertical", 13, 3, 9, 2))
sketch7.addConstraint(Sketcher.Constraint("Vertical", 20, 3, 16, 2))
sketch7.addConstraint(Sketcher.Constraint("Equal", 25, 8))
sketch7.addConstraint(Sketcher.Constraint("Equal", 11, 15))
sketch7.addConstraint(Sketcher.Constraint("Equal", 5, 7))
sketch7.addConstraint(Sketcher.Constraint("Equal", 12, 14))
sketch7.addConstraint(Sketcher.Constraint("DistanceY", 3, 2, 1, 2, Q("6 mm")))
sketch7.addConstraint(Sketcher.Constraint("Diameter", 6, Q("3.3 mm")))
sketch7.addConstraint(Sketcher.Constraint("Angle", 0, Q("60.0007 deg")))
sketch7.addConstraint(Sketcher.Constraint("DistanceX", 13, 3, -1, 1, Q("23 mm")))
sketch7.addConstraint(Sketcher.Constraint("DistanceY", 27, 3, 6, 3, Q("65 mm")))
sketch7.addConstraint(Sketcher.Constraint("DistanceX", -1, 1, 20, 3, Q("24.7 mm")))
sketch7.addConstraint(Sketcher.Constraint("DistanceY", 20, 3, 13, 3, Q("1.3 mm")))
sketch7.addConstraint(Sketcher.Constraint("DistanceX", 1, 1, 1, 2, Q("3.4642 mm")))
sketch7.addConstraint(Sketcher.Constraint("DistanceY", 7, 2, 13, 3, Q("1.732 mm")))
sketch7.addConstraint(Sketcher.Constraint("DistanceY", 20, 3, 14, 2, Q("1.732 mm")))
sketch7.addConstraint(Sketcher.Constraint("DistanceY", -1, 1, 13, 3, Q("11.2875 mm")))
sketch7.setExpression("Constraints[68]", "Params.sketch7_diameter")
pocket5 = doc.addObject("PartDesign::Pocket", "Pocket004")
body.addObject(pocket5)
pocket5.Profile = sketch7
pocket5.setExpression("Length", "Params.pocket5_length")
pocket5.Reversed = True

doc.recompute()
